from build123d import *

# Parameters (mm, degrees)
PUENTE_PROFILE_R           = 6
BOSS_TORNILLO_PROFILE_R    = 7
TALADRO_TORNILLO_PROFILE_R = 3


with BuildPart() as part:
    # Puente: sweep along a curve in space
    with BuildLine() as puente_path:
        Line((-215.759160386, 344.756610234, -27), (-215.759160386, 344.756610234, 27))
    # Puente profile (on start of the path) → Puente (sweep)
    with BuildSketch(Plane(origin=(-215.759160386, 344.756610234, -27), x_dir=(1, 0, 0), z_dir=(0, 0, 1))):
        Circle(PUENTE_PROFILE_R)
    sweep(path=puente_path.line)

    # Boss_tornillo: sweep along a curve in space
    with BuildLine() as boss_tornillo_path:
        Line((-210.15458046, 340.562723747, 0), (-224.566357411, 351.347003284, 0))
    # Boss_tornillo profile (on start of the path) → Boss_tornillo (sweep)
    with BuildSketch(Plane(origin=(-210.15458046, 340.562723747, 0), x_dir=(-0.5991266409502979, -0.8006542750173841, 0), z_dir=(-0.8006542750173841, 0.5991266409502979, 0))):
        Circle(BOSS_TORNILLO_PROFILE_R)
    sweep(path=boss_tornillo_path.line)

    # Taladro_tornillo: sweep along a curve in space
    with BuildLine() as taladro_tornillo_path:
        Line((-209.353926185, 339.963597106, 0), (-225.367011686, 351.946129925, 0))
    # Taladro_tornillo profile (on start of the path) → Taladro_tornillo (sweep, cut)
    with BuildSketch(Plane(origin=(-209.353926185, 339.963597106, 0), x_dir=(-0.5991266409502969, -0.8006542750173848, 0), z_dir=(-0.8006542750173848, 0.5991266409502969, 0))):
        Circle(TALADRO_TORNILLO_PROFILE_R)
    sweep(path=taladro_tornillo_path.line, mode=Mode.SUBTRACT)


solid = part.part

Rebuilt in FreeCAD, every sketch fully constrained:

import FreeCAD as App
import Part
import Sketcher
Q = App.Units.Quantity

doc = App.newDocument("Part")
params = doc.addObject("Spreadsheet::Sheet", "Params")
for row, (alias, value) in enumerate([
    ("sketch1_diameter", "12 mm"),
    ("sketch2_height", "54 mm"),
    ("sketch3_diameter", "14 mm"),
    ("sketch4_width", "18 mm"),
    ("sketch5_diameter", "6 mm"),
    ("sketch6_width", "20 mm"),
], start=1):
    params.set(f"A{row}", alias)
    params.set(f"B{row}", "=" + value)
    params.setAlias(f"B{row}", alias)

body = doc.addObject("PartDesign::Body", "Body")

# Sketch on XY plane
sketch1 = body.newObject("Sketcher::SketchObject", "Sketch")
sketch1.AttachmentSupport = (doc.getObject("XY_Plane"), [""])
sketch1.MapMode = "FlatFace"
sketch1.AttachmentOffset = App.Placement(App.Vector(0, 0, -27), App.Rotation())
sketch1.addGeometry(Part.Circle(App.Vector(-216, 345, 0), App.Vector(0, 0, 1), 6), False)
sketch1.addConstraint([
    Sketcher.Constraint("Diameter", 0, Q("12 mm")),
    Sketcher.Constraint("DistanceX", 0, 3, -1, 1, Q("215.75916 mm")),
    Sketcher.Constraint("DistanceY", -1, 1, 0, 3, Q("344.75661 mm")),
])
sketch1.setExpression("Constraints[0]", "Params.sketch1_diameter")

# Sketch on XZ plane
sketch2 = body.newObject("Sketcher::SketchObject", "Sketch001")
sketch2.AttachmentSupport = (doc.getObject("XZ_Plane"), [""])
sketch2.MapMode = "FlatFace"
sketch2.AttachmentOffset = App.Placement(App.Vector(0, 0, -344.75661), App.Rotation())
sketch2.addGeometry(Part.LineSegment(App.Vector(-216, -27, 0), App.Vector(-216, 27, 0)), False)
sketch2.addConstraint([
    Sketcher.Constraint("Vertical", 0),
    Sketcher.Constraint("DistanceY", 0, 1, 0, 2, Q("54 mm")),
    Sketcher.Constraint("DistanceY", 0, 1, -1, 1, Q("27 mm")),
    Sketcher.Constraint("DistanceX", 0, 1, -1, 1, Q("215.75916 mm")),
])
sketch2.setExpression("Constraints[1]", "Params.sketch2_height")
doc.recompute()

additivepipe = body.newObject("PartDesign::AdditivePipe", "AdditivePipe")
additivepipe.Profile = sketch1
additivepipe.Spine = (sketch2, ["Edge1"])

# Sketch on an angled plane
sketch3 = body.newObject("Sketcher::SketchObject", "Sketch002")
sketch3.Placement = App.Placement(App.Vector(-210.15458, 340.562724, 0), App.Rotation(App.Vector(-0.599126641, -0.800654275, 0), App.Vector(0, 0, 1), App.Vector(-0.800654275, 0.599126641, 0), "ZXY"))
sketch3.addGeometry(Part.Circle(App.Vector(0, 0, 0), App.Vector(0, 0, 1), 7), False)
sketch3.addConstraint([
    Sketcher.Constraint("Coincident", 0, 3, -1, 1),
    Sketcher.Constraint("Diameter", 0, Q("14 mm")),
])
sketch3.setExpression("Constraints[1]", "Params.sketch3_diameter")

# Sketch on an angled plane
sketch4 = body.newObject("Sketcher::SketchObject", "Sketch003")
sketch4.Placement = App.Placement(App.Vector(87.930098, 117.507058, 0), App.Rotation(App.Vector(-0.800654275, 0.599126641, 0), App.Vector(0, 0, 1), App.Vector(0.599126641, 0.800654275, 0), "ZXY"))
sketch4.addGeometry(Part.LineSegment(App.Vector(372, 0, 0), App.Vector(390, 0, 0)), False)
sketch4.addConstraint([
    Sketcher.Constraint("Horizontal", 0),
    Sketcher.Constraint("PointOnObject", 0, 1, -1),
    Sketcher.Constraint("DistanceX", 0, 1, 0, 2, Q("18 mm")),
    Sketcher.Constraint("DistanceX", -1, 1, 0, 1, Q("372.301364 mm")),
])
sketch4.setExpression("Constraints[2]", "Params.sketch4_width")
doc.recompute()

additivepipe2 = body.newObject("PartDesign::AdditivePipe", "AdditivePipe001")
additivepipe2.Profile = sketch3
additivepipe2.Spine = (sketch4, ["Edge1"])

# Sketch on an angled plane
sketch5 = body.newObject("Sketcher::SketchObject", "Sketch004")
sketch5.Placement = App.Placement(App.Vector(-209.353926, 339.963597, 0), App.Rotation(App.Vector(-0.599126641, -0.800654275, 0), App.Vector(0, 0, 1), App.Vector(-0.800654275, 0.599126641, 0), "ZXY"))
sketch5.addGeometry(Part.Circle(App.Vector(0, 0, 0), App.Vector(0, 0, 1), 3), False)
sketch5.addConstraint([
    Sketcher.Constraint("Coincident", 0, 3, -1, 1),
    Sketcher.Constraint("Diameter", 0, Q("6 mm")),
])
sketch5.setExpression("Constraints[1]", "Params.sketch5_diameter")

# Sketch on an angled plane
sketch6 = body.newObject("Sketcher::SketchObject", "Sketch005")
sketch6.Placement = App.Placement(App.Vector(87.930098, 117.507058, 0), App.Rotation(App.Vector(-0.800654275, 0.599126641, 0), App.Vector(0, 0, 1), App.Vector(0.599126641, 0.800654275, 0), "ZXY"))
sketch6.addGeometry(Part.LineSegment(App.Vector(371, 0, 0), App.Vector(391, 0, 0)), False)
sketch6.addConstraint([
    Sketcher.Constraint("Horizontal", 0),
    Sketcher.Constraint("PointOnObject", 0, 1, -1),
    Sketcher.Constraint("DistanceX", 0, 1, 0, 2, Q("20 mm")),
    Sketcher.Constraint("DistanceX", -1, 1, 0, 1, Q("371.301364 mm")),
])
sketch6.setExpression("Constraints[2]", "Params.sketch6_width")
doc.recompute()

subtractivepipe = body.newObject("PartDesign::SubtractivePipe", "SubtractivePipe")
subtractivepipe.Profile = sketch5
subtractivepipe.Spine = (sketch6, ["Edge1"])

doc.recompute()
